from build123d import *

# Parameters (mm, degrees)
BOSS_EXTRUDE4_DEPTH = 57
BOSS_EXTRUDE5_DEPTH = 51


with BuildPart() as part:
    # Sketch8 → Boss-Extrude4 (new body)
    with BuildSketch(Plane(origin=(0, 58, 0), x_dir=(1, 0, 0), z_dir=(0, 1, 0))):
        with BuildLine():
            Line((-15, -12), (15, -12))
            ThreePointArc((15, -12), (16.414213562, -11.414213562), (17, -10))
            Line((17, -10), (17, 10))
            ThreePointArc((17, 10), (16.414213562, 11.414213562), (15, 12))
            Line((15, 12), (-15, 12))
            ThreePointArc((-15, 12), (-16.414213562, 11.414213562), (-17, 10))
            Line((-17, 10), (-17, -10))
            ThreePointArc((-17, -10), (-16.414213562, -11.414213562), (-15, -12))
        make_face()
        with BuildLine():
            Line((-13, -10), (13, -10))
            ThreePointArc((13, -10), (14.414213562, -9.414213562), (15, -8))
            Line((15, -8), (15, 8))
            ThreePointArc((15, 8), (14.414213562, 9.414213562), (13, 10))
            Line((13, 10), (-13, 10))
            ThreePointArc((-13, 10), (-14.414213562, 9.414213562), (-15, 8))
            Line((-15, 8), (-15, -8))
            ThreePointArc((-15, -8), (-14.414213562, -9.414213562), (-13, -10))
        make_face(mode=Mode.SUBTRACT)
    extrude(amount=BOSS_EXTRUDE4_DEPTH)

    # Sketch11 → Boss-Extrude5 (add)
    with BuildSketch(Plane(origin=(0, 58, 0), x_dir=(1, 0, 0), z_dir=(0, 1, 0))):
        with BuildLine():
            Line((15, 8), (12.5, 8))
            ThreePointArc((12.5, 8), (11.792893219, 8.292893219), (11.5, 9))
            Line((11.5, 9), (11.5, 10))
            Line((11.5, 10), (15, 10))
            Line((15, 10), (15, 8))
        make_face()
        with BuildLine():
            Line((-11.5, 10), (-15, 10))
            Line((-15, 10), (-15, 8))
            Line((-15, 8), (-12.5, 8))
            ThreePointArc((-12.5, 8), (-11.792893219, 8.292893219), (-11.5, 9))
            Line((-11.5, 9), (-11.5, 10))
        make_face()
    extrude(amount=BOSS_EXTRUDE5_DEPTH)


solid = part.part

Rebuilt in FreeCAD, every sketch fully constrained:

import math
import FreeCAD as App
import Part
import Sketcher

doc = App.newDocument("Part")
body = doc.addObject("PartDesign::Body", "Body")

# Sketch on XZ plane
sketch1 = doc.addObject("Sketcher::SketchObject", "Sketch")
body.addObject(sketch1)
sketch1.AttachmentSupport = (doc.XZ_Plane, [""])
sketch1.MapMode = "FlatFace"
sketch1.AttachmentOffset = App.Placement(App.Vector(0, 0, -58), App.Rotation())
sketch1.addGeometry([
    Part.LineSegment(App.Vector(-15, 12, 0), App.Vector(15, 12, 0)),  # 0
    Part.ArcOfCircle(Part.Circle(App.Vector(15, 10, 0), App.Vector(0, 0, 1), 2), math.radians(0), math.radians(90)),  # 1
    Part.LineSegment(App.Vector(17, 10, 0), App.Vector(17, -10, 0)),  # 2
    Part.ArcOfCircle(Part.Circle(App.Vector(15, -10, 0), App.Vector(0, 0, 1), 2), math.radians(-90), math.radians(0)),  # 3
    Part.LineSegment(App.Vector(15, -12, 0), App.Vector(-15, -12, 0)),  # 4
    Part.ArcOfCircle(Part.Circle(App.Vector(-15, -10, 0), App.Vector(0, 0, 1), 2), math.radians(-180), math.radians(-90)),  # 5
    Part.LineSegment(App.Vector(-17, -10, 0), App.Vector(-17, 10, 0)),  # 6
    Part.ArcOfCircle(Part.Circle(App.Vector(-15, 10, 0), App.Vector(0, 0, 1), 2), math.radians(90), math.radians(180)),  # 7
    Part.LineSegment(App.Vector(13, 10, 0), App.Vector(-13, 10, 0)),  # 8
    Part.ArcOfCircle(Part.Circle(App.Vector(-13, 8, 0), App.Vector(0, 0, 1), 2), math.radians(90), math.radians(180)),  # 9
    Part.LineSegment(App.Vector(-15, 8, 0), App.Vector(-15, -8, 0)),  # 10
    Part.ArcOfCircle(Part.Circle(App.Vector(-13, -8, 0), App.Vector(0, 0, 1), 2), math.radians(-180), math.radians(-90)),  # 11
    Part.LineSegment(App.Vector(-13, -10, 0), App.Vector(13, -10, 0)),  # 12
    Part.ArcOfCircle(Part.Circle(App.Vector(13, -8, 0), App.Vector(0, 0, 1), 2), math.radians(-90), math.radians(0)),  # 13
    Part.LineSegment(App.Vector(15, -8, 0), App.Vector(15, 8, 0)),  # 14
    Part.ArcOfCircle(Part.Circle(App.Vector(13, 8, 0), App.Vector(0, 0, 1), 2), math.radians(0), math.radians(90)),  # 15
], False)
sketch1.addConstraint([
    Sketcher.Constraint("Tangent", 0, 2, 1, 2),
    Sketcher.Constraint("Tangent", 1, 1, 2, 1),
    Sketcher.Constraint("Tangent", 2, 2, 3, 2),
    Sketcher.Constraint("Tangent", 3, 1, 4, 1),
    Sketcher.Constraint("Tangent", 4, 2, 5, 2),
    Sketcher.Constraint("Tangent", 5, 1, 6, 1),
    Sketcher.Constraint("Tangent", 6, 2, 7, 2),
    Sketcher.Constraint("Tangent", 7, 1, 0, 1),
    Sketcher.Constraint("Tangent", 8, 2, 9, 1),
    Sketcher.Constraint("Tangent", 9, 2, 10, 1),
    Sketcher.Constraint("Tangent", 10, 2, 11, 1),
    Sketcher.Constraint("Tangent", 11, 2, 12, 1),
    Sketcher.Constraint("Tangent", 12, 2, 13, 1),
    Sketcher.Constraint("Tangent", 13, 2, 14, 1),
    Sketcher.Constraint("Tangent", 14, 2, 15, 1),
    Sketcher.Constraint("Tangent", 15, 2, 8, 1),
    Sketcher.Constraint("Horizontal", 0),
    Sketcher.Constraint("Vertical", 2),
    Sketcher.Constraint("Horizontal", 4),
    Sketcher.Constraint("Vertical", 6),
    Sketcher.Constraint("Horizontal", 8),
    Sketcher.Constraint("Vertical", 10),
    Sketcher.Constraint("Horizontal", 12),
    Sketcher.Constraint("Vertical", 14),
    Sketcher.Constraint("Equal", 1, 3),
    Sketcher.Constraint("Equal", 3, 5),
    Sketcher.Constraint("Equal", 5, 7),
    Sketcher.Constraint("Equal", 7, 9),
    Sketcher.Constraint("Equal", 9, 11),
    Sketcher.Constraint("Equal", 11, 13),
    Sketcher.Constraint("Equal", 13, 15),
    Sketcher.Constraint("Symmetric", 1, 3, 5, 3, -1, 1),
    Sketcher.Constraint("Symmetric", 9, 3, 13, 3, -1, 1),
    Sketcher.Constraint("Horizontal", 6, 2, 8, 2),
    Sketcher.Constraint("Vertical", 7, 1, 9, 2),
    Sketcher.Constraint("Radius", 1, 2.0),
    Sketcher.Constraint("DistanceX", 0, 1, 0, 2, 30.0),
    Sketcher.Constraint("DistanceY", 2, 2, 2, 1, 20.0),
])
pad1 = doc.addObject("PartDesign::Pad", "Pad")
body.addObject(pad1)
pad1.Profile = sketch1
pad1.Length = 57
pad1.Reversed = True

# Sketch on XZ plane
sketch2 = doc.addObject("Sketcher::SketchObject", "Sketch001")
body.addObject(sketch2)
sketch2.AttachmentSupport = (doc.XZ_Plane, [""])
sketch2.MapMode = "FlatFace"
sketch2.AttachmentOffset = App.Placement(App.Vector(0, 0, -58), App.Rotation())
sketch2.addGeometry([
    Part.LineSegment(App.Vector(12.5, -8, 0), App.Vector(15, -8, 0)),  # 0
    Part.LineSegment(App.Vector(15, -8, 0), App.Vector(15, -10, 0)),  # 1
    Part.LineSegment(App.Vector(15, -10, 0), App.Vector(11.5, -10, 0)),  # 2
    Part.LineSegment(App.Vector(11.5, -10, 0), App.Vector(11.5, -9, 0)),  # 3
    Part.ArcOfCircle(Part.Circle(App.Vector(12.5, -9, 0), App.Vector(0, 0, 1), 1), math.radians(90), math.radians(180)),  # 4
    Part.LineSegment(App.Vector(-11.5, -10, 0), App.Vector(-15, -10, 0)),  # 5
    Part.LineSegment(App.Vector(-15, -10, 0), App.Vector(-15, -8, 0)),  # 6
    Part.LineSegment(App.Vector(-15, -8, 0), App.Vector(-12.5, -8, 0)),  # 7
    Part.ArcOfCircle(Part.Circle(App.Vector(-12.5, -9, 0), App.Vector(0, 0, 1), 1), math.radians(0), math.radians(90)),  # 8
    Part.LineSegment(App.Vector(-11.5, -9, 0), App.Vector(-11.5, -10, 0)),  # 9
], False)
sketch2.addConstraint([
    Sketcher.Constraint("Coincident", 0, 2, 1, 1),
    Sketcher.Constraint("Coincident", 1, 2, 2, 1),
    Sketcher.Constraint("Coincident", 2, 2, 3, 1),
    Sketcher.Constraint("Tangent", 3, 2, 4, 2),
    Sketcher.Constraint("Tangent", 4, 1, 0, 1),
    Sketcher.Constraint("Coincident", 5, 2, 6, 1),
    Sketcher.Constraint("Coincident", 6, 2, 7, 1),
    Sketcher.Constraint("Tangent", 7, 2, 8, 2),
    Sketcher.Constraint("Tangent", 8, 1, 9, 1),
    Sketcher.Constraint("Coincident", 9, 2, 5, 1),
    Sketcher.Constraint("Horizontal", 0),
    Sketcher.Constraint("Vertical", 1),
    Sketcher.Constraint("Horizontal", 2),
    Sketcher.Constraint("Vertical", 3),
    Sketcher.Constraint("Horizontal", 5),
    Sketcher.Constraint("Vertical", 6),
    Sketcher.Constraint("Horizontal", 7),
    Sketcher.Constraint("Vertical", 9),
    Sketcher.Constraint("Equal", 4, 8),
    Sketcher.Constraint("Symmetric", 4, 3, 8, 3, -2),
    Sketcher.Constraint("Symmetric", 1, 2, 5, 2, -2),
    Sketcher.Constraint("Radius", 4, 1.0),
    Sketcher.Constraint("DistanceY", 1, 2, 1, 1, 2.0),
    Sketcher.Constraint("DistanceX", 0, 1, 0, 2, 2.5),
    Sketcher.Constraint("DistanceY", 4, 3, -1, 1, 9.0),
    Sketcher.Constraint("DistanceX", -1, 1, 0, 2, 15.0),
])
pad2 = doc.addObject("PartDesign::Pad", "Pad001")
body.addObject(pad2)
pad2.Profile = sketch2
pad2.Length = 51
pad2.Reversed = True

doc.recompute()
